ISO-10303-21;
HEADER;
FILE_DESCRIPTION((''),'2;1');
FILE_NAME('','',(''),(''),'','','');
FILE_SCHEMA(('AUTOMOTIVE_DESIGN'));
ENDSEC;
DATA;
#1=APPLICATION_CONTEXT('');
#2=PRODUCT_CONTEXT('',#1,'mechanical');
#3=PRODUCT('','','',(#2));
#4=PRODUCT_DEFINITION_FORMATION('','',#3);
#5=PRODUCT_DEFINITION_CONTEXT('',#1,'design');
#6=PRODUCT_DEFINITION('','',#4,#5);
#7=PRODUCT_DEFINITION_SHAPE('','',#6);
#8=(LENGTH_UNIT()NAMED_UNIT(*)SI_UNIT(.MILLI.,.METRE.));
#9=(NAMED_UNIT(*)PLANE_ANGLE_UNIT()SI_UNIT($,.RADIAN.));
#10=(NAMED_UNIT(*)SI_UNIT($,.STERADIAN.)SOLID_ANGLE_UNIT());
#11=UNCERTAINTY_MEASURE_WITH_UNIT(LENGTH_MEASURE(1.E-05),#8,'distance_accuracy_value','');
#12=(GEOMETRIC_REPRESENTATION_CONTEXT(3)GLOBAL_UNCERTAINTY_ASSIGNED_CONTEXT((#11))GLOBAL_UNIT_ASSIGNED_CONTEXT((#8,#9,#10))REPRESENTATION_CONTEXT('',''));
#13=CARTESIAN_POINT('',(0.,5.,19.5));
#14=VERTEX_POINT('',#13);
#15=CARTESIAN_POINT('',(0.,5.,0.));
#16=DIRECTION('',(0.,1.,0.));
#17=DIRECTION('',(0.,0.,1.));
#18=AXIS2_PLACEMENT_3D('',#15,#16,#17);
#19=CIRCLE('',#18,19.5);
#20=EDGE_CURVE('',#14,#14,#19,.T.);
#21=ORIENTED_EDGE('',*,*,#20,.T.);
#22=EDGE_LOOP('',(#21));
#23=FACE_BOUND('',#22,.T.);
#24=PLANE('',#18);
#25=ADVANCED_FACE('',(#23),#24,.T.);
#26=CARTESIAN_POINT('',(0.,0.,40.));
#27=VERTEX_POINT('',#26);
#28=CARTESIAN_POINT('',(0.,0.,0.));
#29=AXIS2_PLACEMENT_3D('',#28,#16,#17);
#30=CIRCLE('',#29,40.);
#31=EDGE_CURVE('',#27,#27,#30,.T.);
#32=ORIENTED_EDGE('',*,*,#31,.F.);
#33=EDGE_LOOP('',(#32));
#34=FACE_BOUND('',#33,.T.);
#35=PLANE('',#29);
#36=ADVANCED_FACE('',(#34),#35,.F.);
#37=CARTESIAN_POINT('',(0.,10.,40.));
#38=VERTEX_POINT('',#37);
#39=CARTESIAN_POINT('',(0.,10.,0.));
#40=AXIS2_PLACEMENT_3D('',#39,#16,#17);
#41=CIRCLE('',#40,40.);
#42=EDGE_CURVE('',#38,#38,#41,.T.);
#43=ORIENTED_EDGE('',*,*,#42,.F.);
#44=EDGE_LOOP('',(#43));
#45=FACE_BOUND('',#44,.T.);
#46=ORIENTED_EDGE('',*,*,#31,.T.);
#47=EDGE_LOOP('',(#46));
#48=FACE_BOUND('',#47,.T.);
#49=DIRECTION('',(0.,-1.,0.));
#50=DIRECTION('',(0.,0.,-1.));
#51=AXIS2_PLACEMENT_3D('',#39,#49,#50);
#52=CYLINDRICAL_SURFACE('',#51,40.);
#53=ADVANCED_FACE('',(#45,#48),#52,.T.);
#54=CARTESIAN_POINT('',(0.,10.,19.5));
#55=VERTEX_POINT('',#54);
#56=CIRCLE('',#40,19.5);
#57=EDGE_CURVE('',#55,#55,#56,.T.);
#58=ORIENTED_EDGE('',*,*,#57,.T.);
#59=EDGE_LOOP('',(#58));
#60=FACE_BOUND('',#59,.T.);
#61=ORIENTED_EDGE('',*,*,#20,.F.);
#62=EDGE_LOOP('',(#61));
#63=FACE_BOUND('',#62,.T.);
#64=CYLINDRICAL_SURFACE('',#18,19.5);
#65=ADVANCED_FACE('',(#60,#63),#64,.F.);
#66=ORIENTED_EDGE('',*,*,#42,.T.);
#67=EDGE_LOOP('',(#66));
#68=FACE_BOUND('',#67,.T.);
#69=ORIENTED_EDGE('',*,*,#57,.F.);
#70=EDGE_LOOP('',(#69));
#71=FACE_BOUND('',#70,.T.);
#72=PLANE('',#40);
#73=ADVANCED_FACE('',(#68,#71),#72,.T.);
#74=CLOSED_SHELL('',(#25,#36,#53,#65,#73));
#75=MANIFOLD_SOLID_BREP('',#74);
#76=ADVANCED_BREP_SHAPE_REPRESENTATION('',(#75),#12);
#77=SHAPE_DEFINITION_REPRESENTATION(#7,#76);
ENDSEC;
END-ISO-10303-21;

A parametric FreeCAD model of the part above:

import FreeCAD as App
import Part
import Sketcher

V = App.Vector

doc = App.newDocument("Part")
params = doc.addObject("Spreadsheet::Sheet", "Params")
for row, (alias, value) in enumerate([
    ("sketch1_diameter", "80 mm"),
    ("pad1_length", "10 mm"),
    ("sketch2_diameter", "39 mm"),
    ("pocket1_length", "5 mm"),
], start=1):
    params.set(f"A{row}", alias)
    params.set(f"B{row}", "=" + value)
    params.setAlias(f"B{row}", alias)

body = doc.addObject("PartDesign::Body", "Body")

# Sketch on XZ plane
sketch1 = body.newObject("Sketcher::SketchObject", "Sketch")
sketch1.AttachmentSupport = (doc.getObject("XZ_Plane"), [""])
sketch1.MapMode = "FlatFace"
sketch1.addGeometry(Part.Circle(V(0, 0, 0), V(0, 0, 1), 40), False)
sketch1.addConstraint(Sketcher.Constraint("Coincident", 0, 3, -1, 1))
sketch1.addConstraint(Sketcher.Constraint("Diameter", 0, 80.0))
sketch1.setExpression("Constraints[1]", "Params.sketch1_diameter")
pad1 = body.newObject("PartDesign::Pad", "Pad")
pad1.Profile = sketch1
pad1.setExpression("Length", "Params.pad1_length")
pad1.Reversed = True

# Sketch on XZ plane
sketch2 = body.newObject("Sketcher::SketchObject", "Sketch001")
sketch2.AttachmentSupport = (doc.getObject("XZ_Plane"), [""])
sketch2.MapMode = "FlatFace"
sketch2.AttachmentOffset = App.Placement(V(0, 0, -10), App.Rotation())
sketch2.addGeometry(Part.Circle(V(0, 0, 0), V(0, 0, 1), 20), False)
sketch2.addConstraint(Sketcher.Constraint("Coincident", 0, 3, -1, 1))
sketch2.addConstraint(Sketcher.Constraint("Diameter", 0, 39.0))
sketch2.setExpression("Constraints[1]", "Params.sketch2_diameter")
pocket1 = body.newObject("PartDesign::Pocket", "Pocket")
pocket1.Profile = sketch2
pocket1.setExpression("Length", "Params.pocket1_length")
pocket1.Reversed = True

doc.recompute()
